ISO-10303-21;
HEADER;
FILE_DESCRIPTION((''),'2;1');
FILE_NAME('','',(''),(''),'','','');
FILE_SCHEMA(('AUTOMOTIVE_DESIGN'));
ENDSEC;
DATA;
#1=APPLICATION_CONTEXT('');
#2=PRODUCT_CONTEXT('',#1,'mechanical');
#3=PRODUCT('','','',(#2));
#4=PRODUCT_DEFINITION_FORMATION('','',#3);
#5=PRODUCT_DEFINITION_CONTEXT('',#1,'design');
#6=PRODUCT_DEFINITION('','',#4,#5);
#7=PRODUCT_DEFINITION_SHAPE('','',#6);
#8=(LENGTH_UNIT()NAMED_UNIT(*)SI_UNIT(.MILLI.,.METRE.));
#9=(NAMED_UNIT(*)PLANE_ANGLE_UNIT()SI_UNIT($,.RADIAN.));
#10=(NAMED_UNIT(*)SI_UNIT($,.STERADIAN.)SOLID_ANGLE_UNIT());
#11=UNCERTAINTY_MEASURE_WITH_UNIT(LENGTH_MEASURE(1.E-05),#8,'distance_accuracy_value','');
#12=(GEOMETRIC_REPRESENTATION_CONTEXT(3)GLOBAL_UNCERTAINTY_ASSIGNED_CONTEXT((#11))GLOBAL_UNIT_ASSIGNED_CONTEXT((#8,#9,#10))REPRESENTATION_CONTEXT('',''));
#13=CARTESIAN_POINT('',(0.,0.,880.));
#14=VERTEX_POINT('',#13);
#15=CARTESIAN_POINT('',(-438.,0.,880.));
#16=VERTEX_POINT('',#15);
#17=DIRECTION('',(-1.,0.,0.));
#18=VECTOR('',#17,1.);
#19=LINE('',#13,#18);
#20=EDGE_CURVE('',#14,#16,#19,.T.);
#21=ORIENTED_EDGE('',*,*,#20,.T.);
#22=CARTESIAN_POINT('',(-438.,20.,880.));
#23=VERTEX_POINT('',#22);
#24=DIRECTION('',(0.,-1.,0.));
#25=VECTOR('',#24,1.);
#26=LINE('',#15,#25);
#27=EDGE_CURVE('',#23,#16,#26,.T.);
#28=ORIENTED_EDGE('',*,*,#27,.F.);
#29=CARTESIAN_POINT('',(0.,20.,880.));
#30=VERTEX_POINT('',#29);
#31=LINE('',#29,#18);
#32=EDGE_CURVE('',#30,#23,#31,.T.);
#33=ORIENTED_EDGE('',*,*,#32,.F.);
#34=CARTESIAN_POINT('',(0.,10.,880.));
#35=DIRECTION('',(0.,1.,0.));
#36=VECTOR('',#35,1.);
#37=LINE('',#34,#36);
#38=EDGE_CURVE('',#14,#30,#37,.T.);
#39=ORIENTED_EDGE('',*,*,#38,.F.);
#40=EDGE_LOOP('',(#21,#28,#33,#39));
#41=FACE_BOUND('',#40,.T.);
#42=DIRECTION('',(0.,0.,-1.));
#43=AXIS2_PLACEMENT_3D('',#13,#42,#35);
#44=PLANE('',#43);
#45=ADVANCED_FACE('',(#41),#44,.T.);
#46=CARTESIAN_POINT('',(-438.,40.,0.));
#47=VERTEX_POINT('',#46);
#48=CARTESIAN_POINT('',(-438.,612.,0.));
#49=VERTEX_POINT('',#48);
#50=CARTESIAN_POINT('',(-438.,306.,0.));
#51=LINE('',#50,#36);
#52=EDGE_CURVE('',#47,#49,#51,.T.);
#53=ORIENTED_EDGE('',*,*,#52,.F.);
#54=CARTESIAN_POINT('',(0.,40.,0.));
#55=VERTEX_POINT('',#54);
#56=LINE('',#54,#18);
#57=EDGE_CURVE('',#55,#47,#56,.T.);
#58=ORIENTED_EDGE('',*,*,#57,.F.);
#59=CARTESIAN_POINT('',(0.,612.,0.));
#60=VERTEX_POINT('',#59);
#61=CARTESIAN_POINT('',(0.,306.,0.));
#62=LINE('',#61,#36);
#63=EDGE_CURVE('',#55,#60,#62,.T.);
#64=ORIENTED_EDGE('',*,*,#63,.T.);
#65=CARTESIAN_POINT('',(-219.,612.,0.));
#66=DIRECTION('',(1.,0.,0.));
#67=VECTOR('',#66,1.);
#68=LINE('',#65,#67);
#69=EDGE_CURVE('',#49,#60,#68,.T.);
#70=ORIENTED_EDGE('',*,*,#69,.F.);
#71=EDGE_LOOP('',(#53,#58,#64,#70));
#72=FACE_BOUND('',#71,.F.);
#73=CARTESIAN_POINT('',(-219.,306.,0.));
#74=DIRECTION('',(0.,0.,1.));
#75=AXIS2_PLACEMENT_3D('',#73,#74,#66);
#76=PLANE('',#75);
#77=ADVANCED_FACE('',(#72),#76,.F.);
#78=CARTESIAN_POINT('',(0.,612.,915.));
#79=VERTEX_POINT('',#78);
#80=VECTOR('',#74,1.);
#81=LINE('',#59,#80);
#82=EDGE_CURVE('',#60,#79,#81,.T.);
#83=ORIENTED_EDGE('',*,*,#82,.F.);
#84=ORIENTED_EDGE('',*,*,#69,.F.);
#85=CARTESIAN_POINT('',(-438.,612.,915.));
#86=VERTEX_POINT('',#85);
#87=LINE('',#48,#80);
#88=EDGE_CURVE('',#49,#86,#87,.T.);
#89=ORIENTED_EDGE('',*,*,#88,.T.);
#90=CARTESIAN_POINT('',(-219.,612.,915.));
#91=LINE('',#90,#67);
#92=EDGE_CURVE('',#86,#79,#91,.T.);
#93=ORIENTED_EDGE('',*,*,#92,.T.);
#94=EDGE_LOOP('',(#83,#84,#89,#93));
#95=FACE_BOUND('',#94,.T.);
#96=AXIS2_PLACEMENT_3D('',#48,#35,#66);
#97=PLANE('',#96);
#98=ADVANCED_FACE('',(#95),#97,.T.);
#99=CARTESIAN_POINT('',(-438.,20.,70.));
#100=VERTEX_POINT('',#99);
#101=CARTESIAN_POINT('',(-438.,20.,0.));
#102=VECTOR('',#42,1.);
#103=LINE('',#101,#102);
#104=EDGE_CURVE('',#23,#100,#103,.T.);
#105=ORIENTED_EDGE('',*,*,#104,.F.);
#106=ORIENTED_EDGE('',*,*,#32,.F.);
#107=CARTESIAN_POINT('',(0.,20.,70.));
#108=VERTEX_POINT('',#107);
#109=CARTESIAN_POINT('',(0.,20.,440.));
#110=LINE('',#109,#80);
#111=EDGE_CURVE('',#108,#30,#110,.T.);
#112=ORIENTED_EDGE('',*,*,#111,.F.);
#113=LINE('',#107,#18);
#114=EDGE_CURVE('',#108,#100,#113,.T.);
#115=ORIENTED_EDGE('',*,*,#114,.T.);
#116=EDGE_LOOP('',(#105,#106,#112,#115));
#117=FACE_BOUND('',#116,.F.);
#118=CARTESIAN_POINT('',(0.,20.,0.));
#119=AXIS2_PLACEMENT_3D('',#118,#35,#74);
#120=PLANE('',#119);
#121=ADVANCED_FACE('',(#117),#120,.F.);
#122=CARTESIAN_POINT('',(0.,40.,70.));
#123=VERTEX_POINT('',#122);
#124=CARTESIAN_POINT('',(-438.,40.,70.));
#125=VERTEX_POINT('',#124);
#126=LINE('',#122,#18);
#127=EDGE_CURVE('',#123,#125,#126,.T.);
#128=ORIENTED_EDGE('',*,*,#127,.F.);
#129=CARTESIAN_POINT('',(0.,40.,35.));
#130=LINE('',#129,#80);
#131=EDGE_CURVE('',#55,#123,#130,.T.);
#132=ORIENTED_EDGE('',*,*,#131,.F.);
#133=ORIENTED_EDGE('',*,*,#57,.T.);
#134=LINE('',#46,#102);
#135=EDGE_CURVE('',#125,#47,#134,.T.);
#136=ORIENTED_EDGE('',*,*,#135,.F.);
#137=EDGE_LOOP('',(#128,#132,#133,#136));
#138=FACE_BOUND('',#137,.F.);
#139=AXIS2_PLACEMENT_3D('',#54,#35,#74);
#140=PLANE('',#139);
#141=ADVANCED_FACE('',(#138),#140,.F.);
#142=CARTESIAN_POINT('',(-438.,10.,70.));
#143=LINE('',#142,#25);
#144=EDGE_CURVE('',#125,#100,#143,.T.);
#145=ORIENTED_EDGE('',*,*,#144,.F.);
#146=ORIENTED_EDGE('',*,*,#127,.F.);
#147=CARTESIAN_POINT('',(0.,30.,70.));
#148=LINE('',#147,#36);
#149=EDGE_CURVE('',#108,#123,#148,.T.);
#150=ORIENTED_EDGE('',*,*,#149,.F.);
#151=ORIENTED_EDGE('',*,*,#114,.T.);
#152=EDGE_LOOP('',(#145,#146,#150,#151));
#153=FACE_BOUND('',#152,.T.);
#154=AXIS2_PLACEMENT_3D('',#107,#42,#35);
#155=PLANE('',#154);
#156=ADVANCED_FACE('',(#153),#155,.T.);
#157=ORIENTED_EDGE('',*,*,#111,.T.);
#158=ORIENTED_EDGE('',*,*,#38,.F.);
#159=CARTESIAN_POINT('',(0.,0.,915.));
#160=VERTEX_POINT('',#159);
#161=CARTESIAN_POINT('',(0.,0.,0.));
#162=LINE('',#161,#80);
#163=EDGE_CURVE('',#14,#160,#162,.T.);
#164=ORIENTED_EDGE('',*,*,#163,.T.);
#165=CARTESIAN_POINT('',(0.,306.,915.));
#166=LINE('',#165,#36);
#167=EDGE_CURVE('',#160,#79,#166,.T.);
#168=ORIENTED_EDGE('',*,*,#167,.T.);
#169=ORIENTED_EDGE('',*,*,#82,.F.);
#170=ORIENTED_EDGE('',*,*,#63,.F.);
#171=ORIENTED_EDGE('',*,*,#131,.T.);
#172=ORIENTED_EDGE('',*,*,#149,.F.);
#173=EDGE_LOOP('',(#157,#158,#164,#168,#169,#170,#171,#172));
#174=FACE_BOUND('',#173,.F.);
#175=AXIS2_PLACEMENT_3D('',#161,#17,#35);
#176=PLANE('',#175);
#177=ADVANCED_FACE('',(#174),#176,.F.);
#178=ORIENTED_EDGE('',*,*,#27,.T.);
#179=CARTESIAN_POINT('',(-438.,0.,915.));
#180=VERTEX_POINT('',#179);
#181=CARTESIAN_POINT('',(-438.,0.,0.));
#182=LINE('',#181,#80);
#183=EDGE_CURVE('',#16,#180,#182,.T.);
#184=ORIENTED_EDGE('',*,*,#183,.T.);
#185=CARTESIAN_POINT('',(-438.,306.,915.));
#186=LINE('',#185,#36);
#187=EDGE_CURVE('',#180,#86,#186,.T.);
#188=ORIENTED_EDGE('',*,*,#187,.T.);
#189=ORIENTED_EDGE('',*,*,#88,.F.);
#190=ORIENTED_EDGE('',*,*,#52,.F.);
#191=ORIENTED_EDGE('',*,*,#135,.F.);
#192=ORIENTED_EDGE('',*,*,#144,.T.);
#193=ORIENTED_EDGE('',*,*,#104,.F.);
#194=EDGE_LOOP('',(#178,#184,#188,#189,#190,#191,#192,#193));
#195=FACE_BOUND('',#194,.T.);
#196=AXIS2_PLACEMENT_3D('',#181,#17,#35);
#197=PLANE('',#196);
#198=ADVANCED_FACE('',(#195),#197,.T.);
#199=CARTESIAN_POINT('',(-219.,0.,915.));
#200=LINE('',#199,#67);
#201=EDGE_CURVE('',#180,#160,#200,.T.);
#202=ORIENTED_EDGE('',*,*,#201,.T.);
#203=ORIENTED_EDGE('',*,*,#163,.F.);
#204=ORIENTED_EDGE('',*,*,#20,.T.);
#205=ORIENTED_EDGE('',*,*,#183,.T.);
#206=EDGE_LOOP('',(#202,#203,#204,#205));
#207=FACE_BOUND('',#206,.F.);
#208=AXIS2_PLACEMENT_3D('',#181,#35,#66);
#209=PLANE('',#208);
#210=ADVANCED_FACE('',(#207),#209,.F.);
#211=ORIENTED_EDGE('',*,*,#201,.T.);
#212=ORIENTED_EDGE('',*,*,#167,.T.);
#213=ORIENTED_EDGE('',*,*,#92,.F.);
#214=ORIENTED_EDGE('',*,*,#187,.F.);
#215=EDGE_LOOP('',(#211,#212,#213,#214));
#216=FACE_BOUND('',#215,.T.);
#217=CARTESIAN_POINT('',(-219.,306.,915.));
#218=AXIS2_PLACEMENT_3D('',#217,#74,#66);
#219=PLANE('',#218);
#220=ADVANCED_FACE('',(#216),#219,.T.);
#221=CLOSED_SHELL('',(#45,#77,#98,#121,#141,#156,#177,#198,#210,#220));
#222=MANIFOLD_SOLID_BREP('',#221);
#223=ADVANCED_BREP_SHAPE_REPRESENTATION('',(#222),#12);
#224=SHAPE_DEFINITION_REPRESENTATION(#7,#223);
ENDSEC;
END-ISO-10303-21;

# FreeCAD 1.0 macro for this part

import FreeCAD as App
import Part
import Sketcher
Q = App.Units.Quantity


def add_polygon(sketch, points):
    """Adds a closed chain of lines whose ends are joined by coincident constraints."""
    first, n = sketch.GeometryCount, len(points)
    for a, b in zip(points, points[1:] + points[:1]):
        sketch.addGeometry(Part.LineSegment(App.Vector(*a, 0), App.Vector(*b, 0)), False)
    for i in range(n):
        sketch.addConstraint(Sketcher.Constraint("Coincident", first + i, 2, first + (i + 1) % n, 1))

doc = App.newDocument("Part")
body = doc.addObject("PartDesign::Body", "Body")

# Sketch on XY plane
sketch1 = doc.addObject("Sketcher::SketchObject", "Sketch")
body.addObject(sketch1)
sketch1.AttachmentSupport = (doc.XY_Plane, [""])
sketch1.MapMode = "FlatFace"
add_polygon(sketch1, [(-438, 612), (-438, 0), (0, 0), (0, 612)])  # lines 0-3
sketch1.addConstraint([
    Sketcher.Constraint("Vertical", 0),
    Sketcher.Constraint("Horizontal", 1),
    Sketcher.Constraint("Vertical", 2),
    Sketcher.Constraint("Horizontal", 3),
    Sketcher.Constraint("Coincident", 1, 2, -1, 1),
    Sketcher.Constraint("DistanceX", 1, 1, 1, 2, Q("438 mm")),
    Sketcher.Constraint("DistanceY", 0, 2, 0, 1, Q("612 mm")),
])
pad1 = doc.addObject("PartDesign::Pad", "Pad")
body.addObject(pad1)
pad1.Profile = sketch1
pad1.Length = 915

# Sketch on YZ plane
sketch2 = doc.addObject("Sketcher::SketchObject", "Sketch001")
body.addObject(sketch2)
sketch2.AttachmentSupport = (doc.YZ_Plane, [""])
sketch2.MapMode = "FlatFace"
add_polygon(sketch2, [(0, 880), (0, 0), (20, 0), (20, 880)])  # lines 0-3
sketch2.addConstraint([
    Sketcher.Constraint("Vertical", 0),
    Sketcher.Constraint("Horizontal", 1),
    Sketcher.Constraint("Vertical", 2),
    Sketcher.Constraint("Horizontal", 3),
    Sketcher.Constraint("Coincident", 0, 2, -1, 1),
    Sketcher.Constraint("DistanceX", 1, 1, 1, 2, Q("20 mm")),
    Sketcher.Constraint("DistanceY", 0, 2, 0, 1, Q("880 mm")),
])
pocket1 = doc.addObject("PartDesign::Pocket", "Pocket")
body.addObject(pocket1)
pocket1.Profile = sketch2
pocket1.Type = "ThroughAll"

# Sketch on YZ plane
sketch3 = doc.addObject("Sketcher::SketchObject", "Sketch002")
body.addObject(sketch3)
sketch3.AttachmentSupport = (doc.YZ_Plane, [""])
sketch3.MapMode = "FlatFace"
add_polygon(sketch3, [(20, 70), (20, 0), (40, 0), (40, 70)])  # lines 0-3
sketch3.addConstraint([
    Sketcher.Constraint("Vertical", 0),
    Sketcher.Constraint("Horizontal", 1),
    Sketcher.Constraint("Vertical", 2),
    Sketcher.Constraint("Horizontal", 3),
    Sketcher.Constraint("PointOnObject", 0, 2, -1),
    Sketcher.Constraint("DistanceX", 1, 1, 1, 2, Q("20 mm")),
    Sketcher.Constraint("DistanceY", 0, 2, 0, 1, Q("70 mm")),
    Sketcher.Constraint("DistanceX", -1, 1, 0, 2, Q("20 mm")),
])
pocket2 = doc.addObject("PartDesign::Pocket", "Pocket001")
body.addObject(pocket2)
pocket2.Profile = sketch3
pocket2.Type = "ThroughAll"

doc.recompute()
